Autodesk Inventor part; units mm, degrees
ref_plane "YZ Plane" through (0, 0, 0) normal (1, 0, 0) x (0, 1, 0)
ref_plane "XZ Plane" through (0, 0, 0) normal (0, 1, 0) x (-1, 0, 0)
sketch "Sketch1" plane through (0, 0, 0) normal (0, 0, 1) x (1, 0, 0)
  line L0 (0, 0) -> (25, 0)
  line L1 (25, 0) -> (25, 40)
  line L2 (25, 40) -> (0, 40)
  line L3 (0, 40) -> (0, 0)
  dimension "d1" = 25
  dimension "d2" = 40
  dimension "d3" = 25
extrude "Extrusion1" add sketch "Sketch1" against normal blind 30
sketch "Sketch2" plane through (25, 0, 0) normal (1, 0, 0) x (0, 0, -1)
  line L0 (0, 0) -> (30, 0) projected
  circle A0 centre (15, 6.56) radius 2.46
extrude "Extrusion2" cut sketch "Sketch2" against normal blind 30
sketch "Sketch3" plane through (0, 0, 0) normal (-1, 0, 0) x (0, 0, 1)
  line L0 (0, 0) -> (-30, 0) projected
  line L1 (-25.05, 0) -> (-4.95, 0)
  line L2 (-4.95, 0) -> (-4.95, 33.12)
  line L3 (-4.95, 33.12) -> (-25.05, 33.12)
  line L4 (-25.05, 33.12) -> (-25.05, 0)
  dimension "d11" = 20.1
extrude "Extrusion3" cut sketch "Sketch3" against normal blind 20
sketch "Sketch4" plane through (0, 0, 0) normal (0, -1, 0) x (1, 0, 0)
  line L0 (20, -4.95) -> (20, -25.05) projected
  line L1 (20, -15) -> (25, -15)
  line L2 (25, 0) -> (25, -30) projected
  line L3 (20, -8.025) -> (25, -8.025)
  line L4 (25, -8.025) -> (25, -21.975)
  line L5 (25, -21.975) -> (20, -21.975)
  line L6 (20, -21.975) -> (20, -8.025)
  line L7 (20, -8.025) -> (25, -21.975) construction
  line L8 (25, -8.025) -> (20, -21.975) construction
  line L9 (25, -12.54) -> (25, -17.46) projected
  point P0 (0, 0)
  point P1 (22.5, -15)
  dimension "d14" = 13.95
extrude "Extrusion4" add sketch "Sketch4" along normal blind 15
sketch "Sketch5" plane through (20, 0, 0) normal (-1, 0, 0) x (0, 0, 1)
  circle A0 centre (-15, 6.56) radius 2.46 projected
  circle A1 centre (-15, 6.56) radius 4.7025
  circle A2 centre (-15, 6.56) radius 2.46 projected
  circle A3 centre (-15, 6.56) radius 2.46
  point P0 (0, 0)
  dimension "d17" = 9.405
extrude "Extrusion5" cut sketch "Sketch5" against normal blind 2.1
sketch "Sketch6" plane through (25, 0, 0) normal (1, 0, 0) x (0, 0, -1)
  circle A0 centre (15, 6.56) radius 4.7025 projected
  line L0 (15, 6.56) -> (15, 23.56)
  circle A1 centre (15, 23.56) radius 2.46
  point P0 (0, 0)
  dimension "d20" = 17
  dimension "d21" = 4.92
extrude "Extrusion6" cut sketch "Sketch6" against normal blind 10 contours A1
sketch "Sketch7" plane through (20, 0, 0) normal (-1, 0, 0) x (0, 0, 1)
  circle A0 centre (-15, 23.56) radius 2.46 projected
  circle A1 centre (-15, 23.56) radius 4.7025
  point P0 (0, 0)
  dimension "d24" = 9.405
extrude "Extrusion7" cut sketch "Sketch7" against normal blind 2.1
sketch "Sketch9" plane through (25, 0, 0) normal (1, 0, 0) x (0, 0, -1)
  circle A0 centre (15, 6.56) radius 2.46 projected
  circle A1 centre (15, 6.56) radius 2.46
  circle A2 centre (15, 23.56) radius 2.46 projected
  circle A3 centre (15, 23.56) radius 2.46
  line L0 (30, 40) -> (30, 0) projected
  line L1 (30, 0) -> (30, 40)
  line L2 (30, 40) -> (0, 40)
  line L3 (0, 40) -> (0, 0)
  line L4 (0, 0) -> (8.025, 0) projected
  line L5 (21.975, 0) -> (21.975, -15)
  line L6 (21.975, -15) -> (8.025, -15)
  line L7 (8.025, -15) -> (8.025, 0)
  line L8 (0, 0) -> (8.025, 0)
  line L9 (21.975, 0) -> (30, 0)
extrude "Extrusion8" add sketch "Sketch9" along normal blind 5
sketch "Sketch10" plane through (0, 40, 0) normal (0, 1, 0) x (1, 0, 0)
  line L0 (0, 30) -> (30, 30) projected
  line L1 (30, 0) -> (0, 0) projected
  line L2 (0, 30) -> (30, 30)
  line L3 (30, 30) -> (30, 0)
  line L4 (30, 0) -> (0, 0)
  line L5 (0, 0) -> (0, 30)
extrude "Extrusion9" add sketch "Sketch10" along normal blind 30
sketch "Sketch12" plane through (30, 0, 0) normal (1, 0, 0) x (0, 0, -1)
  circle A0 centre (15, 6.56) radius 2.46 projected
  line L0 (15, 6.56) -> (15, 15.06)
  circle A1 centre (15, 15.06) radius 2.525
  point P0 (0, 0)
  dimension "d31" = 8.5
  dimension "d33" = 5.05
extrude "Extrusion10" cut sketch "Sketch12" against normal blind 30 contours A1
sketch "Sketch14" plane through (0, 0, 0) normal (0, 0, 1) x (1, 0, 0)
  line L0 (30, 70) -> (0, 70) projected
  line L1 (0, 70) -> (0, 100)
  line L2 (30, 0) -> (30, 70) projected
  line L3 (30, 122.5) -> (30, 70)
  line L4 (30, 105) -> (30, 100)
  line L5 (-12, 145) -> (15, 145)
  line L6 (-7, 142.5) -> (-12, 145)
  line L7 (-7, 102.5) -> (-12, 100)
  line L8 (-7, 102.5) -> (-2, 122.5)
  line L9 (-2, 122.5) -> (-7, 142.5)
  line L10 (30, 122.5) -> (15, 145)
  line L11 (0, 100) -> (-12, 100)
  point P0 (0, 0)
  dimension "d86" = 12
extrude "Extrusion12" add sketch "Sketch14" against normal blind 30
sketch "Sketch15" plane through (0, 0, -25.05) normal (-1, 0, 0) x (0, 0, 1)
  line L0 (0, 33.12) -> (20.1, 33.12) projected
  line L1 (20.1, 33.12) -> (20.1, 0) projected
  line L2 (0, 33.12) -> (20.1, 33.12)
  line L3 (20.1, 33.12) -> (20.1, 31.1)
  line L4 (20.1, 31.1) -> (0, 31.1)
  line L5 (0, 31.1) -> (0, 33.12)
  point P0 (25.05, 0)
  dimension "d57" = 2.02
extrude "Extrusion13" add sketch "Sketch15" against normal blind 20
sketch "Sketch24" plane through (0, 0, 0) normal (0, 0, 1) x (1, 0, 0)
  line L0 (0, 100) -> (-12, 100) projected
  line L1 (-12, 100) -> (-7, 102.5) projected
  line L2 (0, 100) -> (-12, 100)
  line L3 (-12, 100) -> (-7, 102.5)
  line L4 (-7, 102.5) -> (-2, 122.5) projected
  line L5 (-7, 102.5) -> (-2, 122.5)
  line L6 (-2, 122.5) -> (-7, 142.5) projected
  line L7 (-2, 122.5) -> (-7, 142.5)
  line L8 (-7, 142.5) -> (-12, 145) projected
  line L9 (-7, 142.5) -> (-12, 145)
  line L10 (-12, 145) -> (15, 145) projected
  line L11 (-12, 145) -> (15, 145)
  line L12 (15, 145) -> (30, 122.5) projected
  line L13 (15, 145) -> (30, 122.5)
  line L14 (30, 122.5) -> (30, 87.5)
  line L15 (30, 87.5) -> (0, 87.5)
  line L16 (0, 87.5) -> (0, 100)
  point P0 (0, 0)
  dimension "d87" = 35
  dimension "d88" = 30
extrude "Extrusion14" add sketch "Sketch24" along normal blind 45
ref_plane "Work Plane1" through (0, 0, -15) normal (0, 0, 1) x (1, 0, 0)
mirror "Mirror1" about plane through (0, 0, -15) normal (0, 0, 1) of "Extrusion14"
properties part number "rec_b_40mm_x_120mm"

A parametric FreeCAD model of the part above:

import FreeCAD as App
import Part
import Sketcher

V = App.Vector
Q = App.Units.Quantity

doc = App.newDocument("Part")
body = doc.addObject("PartDesign::Body", "Body")

# Sketch on XY plane
sketch1 = body.newObject("Sketcher::SketchObject", "Sketch")
sketch1.AttachmentSupport = (doc.getObject("XY_Plane"), [""])
sketch1.MapMode = "FlatFace"
sketch1.addGeometry([
    Part.LineSegment(V(0, 40, 0), V(0, 0, 0)),
    Part.LineSegment(V(0, 0, 0), V(25, 0, 0)),
    Part.LineSegment(V(25, 0, 0), V(25, 40, 0)),
    Part.LineSegment(V(25, 40, 0), V(0, 40, 0)),
], False)
sketch1.addConstraint([
    Sketcher.Constraint("Coincident", 0, 2, 1, 1),
    Sketcher.Constraint("Coincident", 1, 2, 2, 1),
    Sketcher.Constraint("Coincident", 2, 2, 3, 1),
    Sketcher.Constraint("Coincident", 3, 2, 0, 1),
    Sketcher.Constraint("Vertical", 0),
    Sketcher.Constraint("Horizontal", 1),
    Sketcher.Constraint("Vertical", 2),
    Sketcher.Constraint("Horizontal", 3),
    Sketcher.Constraint("Coincident", 0, 2, -1, 1),
    Sketcher.Constraint("DistanceX", 1, 1, 1, 2, Q("25 mm")),
    Sketcher.Constraint("DistanceY", 0, 2, 0, 1, Q("40 mm")),
])
pad1 = body.newObject("PartDesign::Pad", "Pad")
pad1.Profile = sketch1
pad1.Length = 30
pad1.Reversed = True

# Sketch on YZ plane
sketch2 = body.newObject("Sketcher::SketchObject", "Sketch001")
sketch2.AttachmentSupport = (doc.getObject("YZ_Plane"), [""])
sketch2.MapMode = "FlatFace"
sketch2.AttachmentOffset = App.Placement(V(0, 0, 25), App.Rotation())
sketch2.addGeometry(Part.Circle(V(6.56, -15, 0), V(0, 0, 1), 2.46), False)
sketch2.addConstraint([
    Sketcher.Constraint("Diameter", 0, Q("4.92 mm")),
    Sketcher.Constraint("DistanceY", 0, 3, -1, 1, Q("15 mm")),
    Sketcher.Constraint("DistanceX", -1, 1, 0, 3, Q("6.56 mm")),
])
pocket1 = body.newObject("PartDesign::Pocket", "Pocket")
pocket1.Profile = sketch2
pocket1.Length = 30

# Sketch on YZ plane
sketch3 = body.newObject("Sketcher::SketchObject", "Sketch002")
sketch3.AttachmentSupport = (doc.getObject("YZ_Plane"), [""])
sketch3.MapMode = "FlatFace"
sketch3.addGeometry([
    Part.LineSegment(V(0, -25.05, 0), V(0, -4.95, 0)),
    Part.LineSegment(V(0, -4.95, 0), V(33.12, -4.95, 0)),
    Part.LineSegment(V(33.12, -4.95, 0), V(33.12, -25.05, 0)),
    Part.LineSegment(V(33.12, -25.05, 0), V(0, -25.05, 0)),
], False)
sketch3.addConstraint([
    Sketcher.Constraint("Coincident", 0, 2, 1, 1),
    Sketcher.Constraint("Coincident", 1, 2, 2, 1),
    Sketcher.Constraint("Coincident", 2, 2, 3, 1),
    Sketcher.Constraint("Coincident", 3, 2, 0, 1),
    Sketcher.Constraint("Vertical", 0),
    Sketcher.Constraint("Horizontal", 1),
    Sketcher.Constraint("Vertical", 2),
    Sketcher.Constraint("Horizontal", 3),
    Sketcher.Constraint("PointOnObject", 0, 2, -2),
    Sketcher.Constraint("DistanceY", 0, 1, 0, 2, Q("20.1 mm")),
    Sketcher.Constraint("DistanceX", 1, 1, 1, 2, Q("33.12 mm")),
    Sketcher.Constraint("DistanceY", 0, 2, -1, 1, Q("4.95 mm")),
])
pocket2 = body.newObject("PartDesign::Pocket", "Pocket001")
pocket2.Profile = sketch3
pocket2.Length = 20
pocket2.Reversed = True

# Sketch on XZ plane
sketch4 = body.newObject("Sketcher::SketchObject", "Sketch003")
sketch4.AttachmentSupport = (doc.getObject("XZ_Plane"), [""])
sketch4.MapMode = "FlatFace"
sketch4.addGeometry([
    Part.LineSegment(V(25, -8.025, 0), V(20, -8.025, 0)),
    Part.LineSegment(V(20, -8.025, 0), V(20, -21.975, 0)),
    Part.LineSegment(V(20, -21.975, 0), V(25, -21.975, 0)),
    Part.LineSegment(V(25, -21.975, 0), V(25, -8.025, 0)),
], False)
sketch4.addConstraint([
    Sketcher.Constraint("Coincident", 0, 2, 1, 1),
    Sketcher.Constraint("Coincident", 1, 2, 2, 1),
    Sketcher.Constraint("Coincident", 2, 2, 3, 1),
    Sketcher.Constraint("Coincident", 3, 2, 0, 1),
    Sketcher.Constraint("Horizontal", 0),
    Sketcher.Constraint("Vertical", 1),
    Sketcher.Constraint("Horizontal", 2),
    Sketcher.Constraint("Vertical", 3),
    Sketcher.Constraint("DistanceY", 1, 2, 1, 1, Q("13.95 mm")),
    Sketcher.Constraint("DistanceX", 0, 2, 0, 1, Q("5 mm")),
    Sketcher.Constraint("DistanceX", -1, 1, 0, 2, Q("20 mm")),
    Sketcher.Constraint("DistanceY", 0, 2, -1, 1, Q("8.025 mm")),
])
pad2 = body.newObject("PartDesign::Pad", "Pad001")
pad2.Profile = sketch4
pad2.Length = 15

# Sketch on YZ plane
sketch5 = body.newObject("Sketcher::SketchObject", "Sketch004")
sketch5.AttachmentSupport = (doc.getObject("YZ_Plane"), [""])
sketch5.MapMode = "FlatFace"
sketch5.AttachmentOffset = App.Placement(V(0, 0, 20), App.Rotation())
sketch5.addGeometry([
    Part.Circle(V(6.56, -15, 0), V(0, 0, 1), 4.7025),
    Part.Circle(V(6.56, -15, 0), V(0, 0, 1), 2.46),
], False)
sketch5.addConstraint([
    Sketcher.Constraint("Coincident", 1, 3, 0, 3),
    Sketcher.Constraint("Diameter", 0, Q("9.405 mm")),
    Sketcher.Constraint("Diameter", 1, Q("4.92 mm")),
    Sketcher.Constraint("DistanceY", 0, 3, -1, 1, Q("15 mm")),
    Sketcher.Constraint("DistanceX", -1, 1, 0, 3, Q("6.56 mm")),
])
pocket3 = body.newObject("PartDesign::Pocket", "Pocket002")
pocket3.Profile = sketch5
pocket3.Length = 2.1
pocket3.Reversed = True

# Sketch on YZ plane
sketch6 = body.newObject("Sketcher::SketchObject", "Sketch005")
sketch6.AttachmentSupport = (doc.getObject("YZ_Plane"), [""])
sketch6.MapMode = "FlatFace"
sketch6.AttachmentOffset = App.Placement(V(0, 0, 25), App.Rotation())
sketch6.addGeometry(Part.Circle(V(23.56, -15, 0), V(0, 0, 1), 2.46), False)
sketch6.addConstraint([
    Sketcher.Constraint("Diameter", 0, Q("4.92 mm")),
    Sketcher.Constraint("DistanceY", 0, 3, -1, 1, Q("15 mm")),
    Sketcher.Constraint("DistanceX", -1, 1, 0, 3, Q("23.56 mm")),
])
pocket4 = body.newObject("PartDesign::Pocket", "Pocket003")
pocket4.Profile = sketch6
pocket4.Length = 10

# Sketch on YZ plane
sketch7 = body.newObject("Sketcher::SketchObject", "Sketch006")
sketch7.AttachmentSupport = (doc.getObject("YZ_Plane"), [""])
sketch7.MapMode = "FlatFace"
sketch7.AttachmentOffset = App.Placement(V(0, 0, 20), App.Rotation())
sketch7.addGeometry([
    Part.Circle(V(23.56, -15, 0), V(0, 0, 1), 4.7025),
    Part.Circle(V(23.56, -15, 0), V(0, 0, 1), 2.46),
], False)
sketch7.addConstraint([
    Sketcher.Constraint("Coincident", 1, 3, 0, 3),
    Sketcher.Constraint("Diameter", 0, Q("9.405 mm")),
    Sketcher.Constraint("Diameter", 1, Q("4.92 mm")),
    Sketcher.Constraint("DistanceY", 0, 3, -1, 1, Q("15 mm")),
    Sketcher.Constraint("DistanceX", -1, 1, 0, 3, Q("23.56 mm")),
])
pocket5 = body.newObject("PartDesign::Pocket", "Pocket004")
pocket5.Profile = sketch7
pocket5.Length = 2.1
pocket5.Reversed = True

# Sketch on YZ plane
sketch8 = body.newObject("Sketcher::SketchObject", "Sketch007")
sketch8.AttachmentSupport = (doc.getObject("YZ_Plane"), [""])
sketch8.MapMode = "FlatFace"
sketch8.AttachmentOffset = App.Placement(V(0, 0, 25), App.Rotation())
sketch8.addGeometry([
    Part.LineSegment(V(0, -30, 0), V(40, -30, 0)),  # 0
    Part.LineSegment(V(40, -30, 0), V(40, 0, 0)),  # 1
    Part.LineSegment(V(40, 0, 0), V(0, 0, 0)),  # 2
    Part.LineSegment(V(0, 0, 0), V(0, -8.025, 0)),  # 3
    Part.LineSegment(V(0, -8.025, 0), V(-15, -8.025, 0)),  # 4
    Part.LineSegment(V(-15, -8.025, 0), V(-15, -21.975, 0)),  # 5
    Part.LineSegment(V(-15, -21.975, 0), V(0, -21.975, 0)),  # 6
    Part.LineSegment(V(0, -21.975, 0), V(0, -30, 0)),  # 7
    Part.Circle(V(6.56, -15, 0), V(0, 0, 1), 2.46),  # 8
    Part.Circle(V(23.56, -15, 0), V(0, 0, 1), 2.46),  # 9
], False)
sketch8.addConstraint([
    Sketcher.Constraint("Coincident", 0, 2, 1, 1),
    Sketcher.Constraint("Coincident", 1, 2, 2, 1),
    Sketcher.Constraint("Coincident", 2, 2, 3, 1),
    Sketcher.Constraint("Coincident", 3, 2, 4, 1),
    Sketcher.Constraint("Coincident", 4, 2, 5, 1),
    Sketcher.Constraint("Coincident", 5, 2, 6, 1),
    Sketcher.Constraint("Coincident", 6, 2, 7, 1),
    Sketcher.Constraint("Coincident", 7, 2, 0, 1),
    Sketcher.Constraint("Horizontal", 0),
    Sketcher.Constraint("Vertical", 1),
    Sketcher.Constraint("Horizontal", 2),
    Sketcher.Constraint("Vertical", 3),
    Sketcher.Constraint("Horizontal", 4),
    Sketcher.Constraint("Vertical", 5),
    Sketcher.Constraint("Horizontal", 6),
    Sketcher.Constraint("Vertical", 7),
    Sketcher.Constraint("Coincident", 2, 2, -1, 1),
    Sketcher.Constraint("Equal", 8, 9),
    Sketcher.Constraint("PointOnObject", 6, 2, -2),
    Sketcher.Constraint("Horizontal", 8, 3, 9, 3),
    Sketcher.Constraint("Equal", 3, 7),
    Sketcher.Constraint("Diameter", 8, Q("4.92 mm")),
    Sketcher.Constraint("DistanceX", 0, 1, 0, 2, Q("40 mm")),
    Sketcher.Constraint("DistanceX", 4, 2, 4, 1, Q("15 mm")),
    Sketcher.Constraint("DistanceY", 1, 1, 1, 2, Q("30 mm")),
    Sketcher.Constraint("DistanceY", 8, 3, -1, 1, Q("15 mm")),
    Sketcher.Constraint("DistanceX", 8, 3, 9, 3, Q("17 mm")),
    Sketcher.Constraint("DistanceY", 5, 2, 5, 1, Q("13.95 mm")),
    Sketcher.Constraint("DistanceX", -1, 1, 8, 3, Q("6.56 mm")),
])
pad3 = body.newObject("PartDesign::Pad", "Pad002")
pad3.Profile = sketch8
pad3.Length = 5

# Sketch on XZ plane
sketch9 = body.newObject("Sketcher::SketchObject", "Sketch008")
sketch9.AttachmentSupport = (doc.getObject("XZ_Plane"), [""])
sketch9.MapMode = "FlatFace"
sketch9.AttachmentOffset = App.Placement(V(0, 0, -40), App.Rotation())
sketch9.addGeometry([
    Part.LineSegment(V(30, -30, 0), V(0, -30, 0)),
    Part.LineSegment(V(0, -30, 0), V(0, 0, 0)),
    Part.LineSegment(V(0, 0, 0), V(30, 0, 0)),
    Part.LineSegment(V(30, 0, 0), V(30, -30, 0)),
], False)
sketch9.addConstraint([
    Sketcher.Constraint("Coincident", 0, 2, 1, 1),
    Sketcher.Constraint("Coincident", 1, 2, 2, 1),
    Sketcher.Constraint("Coincident", 2, 2, 3, 1),
    Sketcher.Constraint("Coincident", 3, 2, 0, 1),
    Sketcher.Constraint("Horizontal", 0),
    Sketcher.Constraint("Vertical", 1),
    Sketcher.Constraint("Horizontal", 2),
    Sketcher.Constraint("Vertical", 3),
    Sketcher.Constraint("Coincident", 1, 2, -1, 1),
    Sketcher.Constraint("Equal", 2, 1),
    Sketcher.Constraint("DistanceX", 0, 2, 0, 1, Q("30 mm")),
])
pad4 = body.newObject("PartDesign::Pad", "Pad003")
pad4.Profile = sketch9
pad4.Length = 30
pad4.Reversed = True

# Sketch on YZ plane
sketch10 = body.newObject("Sketcher::SketchObject", "Sketch009")
sketch10.AttachmentSupport = (doc.getObject("YZ_Plane"), [""])
sketch10.MapMode = "FlatFace"
sketch10.AttachmentOffset = App.Placement(V(0, 0, 30), App.Rotation())
sketch10.addGeometry(Part.Circle(V(15.06, -15, 0), V(0, 0, 1), 2.525), False)
sketch10.addConstraint([
    Sketcher.Constraint("Diameter", 0, Q("5.05 mm")),
    Sketcher.Constraint("DistanceY", 0, 3, -1, 1, Q("15 mm")),
    Sketcher.Constraint("DistanceX", -1, 1, 0, 3, Q("15.06 mm")),
])
pocket6 = body.newObject("PartDesign::Pocket", "Pocket005")
pocket6.Profile = sketch10
pocket6.Length = 30

# Sketch on XY plane
sketch11 = body.newObject("Sketcher::SketchObject", "Sketch010")
sketch11.AttachmentSupport = (doc.getObject("XY_Plane"), [""])
sketch11.MapMode = "FlatFace"
sketch11.addGeometry([
    Part.LineSegment(V(0, 70, 0), V(30, 70, 0)),  # 0
    Part.LineSegment(V(30, 70, 0), V(30, 122.5, 0)),  # 1
    Part.LineSegment(V(30, 122.5, 0), V(15, 145, 0)),  # 2
    Part.LineSegment(V(15, 145, 0), V(-12, 145, 0)),  # 3
    Part.LineSegment(V(-12, 145, 0), V(-7, 142.5, 0)),  # 4
    Part.LineSegment(V(-7, 142.5, 0), V(-2, 122.5, 0)),  # 5
    Part.LineSegment(V(-2, 122.5, 0), V(-7, 102.5, 0)),  # 6
    Part.LineSegment(V(-7, 102.5, 0), V(-12, 100, 0)),  # 7
    Part.LineSegment(V(-12, 100, 0), V(0, 100, 0)),  # 8
    Part.LineSegment(V(0, 100, 0), V(0, 70, 0)),  # 9
], False)
sketch11.addConstraint([
    Sketcher.Constraint("Coincident", 0, 2, 1, 1),
    Sketcher.Constraint("Coincident", 1, 2, 2, 1),
    Sketcher.Constraint("Coincident", 2, 2, 3, 1),
    Sketcher.Constraint("Coincident", 3, 2, 4, 1),
    Sketcher.Constraint("Coincident", 4, 2, 5, 1),
    Sketcher.Constraint("Coincident", 5, 2, 6, 1),
    Sketcher.Constraint("Coincident", 6, 2, 7, 1),
    Sketcher.Constraint("Coincident", 7, 2, 8, 1),
    Sketcher.Constraint("Coincident", 8, 2, 9, 1),
    Sketcher.Constraint("Coincident", 9, 2, 0, 1),
    Sketcher.Constraint("Horizontal", 0),
    Sketcher.Constraint("Vertical", 1),
    Sketcher.Constraint("Horizontal", 3),
    Sketcher.Constraint("Horizontal", 8),
    Sketcher.Constraint("Vertical", 9),
    Sketcher.Constraint("PointOnObject", 8, 2, -2),
    Sketcher.Constraint("Horizontal", 1, 2, 5, 2),
    Sketcher.Constraint("Vertical", 4, 2, 6, 2),
    Sketcher.Constraint("Vertical", 3, 2, 7, 2),
    Sketcher.Constraint("Equal", 0, 9),
    Sketcher.Constraint("Equal", 5, 6),
    Sketcher.Constraint("Equal", 4, 7),
    Sketcher.Constraint("DistanceX", 8, 1, 8, 2, Q("12 mm")),
    Sketcher.Constraint("DistanceX", 0, 1, 0, 2, Q("30 mm")),
    Sketcher.Constraint("DistanceX", 3, 2, 3, 1, Q("27 mm")),
    Sketcher.Constraint("DistanceY", 1, 1, 1, 2, Q("52.5 mm")),
    Sketcher.Constraint("DistanceY", -1, 1, 0, 2, Q("70 mm")),
    Sketcher.Constraint("DistanceX", 4, 2, -1, 1, Q("7 mm")),
    Sketcher.Constraint("DistanceX", 5, 2, -1, 1, Q("2 mm")),
    Sketcher.Constraint("DistanceY", 1, 2, 4, 2, Q("20 mm")),
])
pad5 = body.newObject("PartDesign::Pad", "Pad004")
pad5.Profile = sketch11
pad5.Length = 30
pad5.Reversed = True

# Sketch on YZ plane
sketch12 = body.newObject("Sketcher::SketchObject", "Sketch011")
sketch12.AttachmentSupport = (doc.getObject("YZ_Plane"), [""])
sketch12.MapMode = "FlatFace"
sketch12.addGeometry([
    Part.LineSegment(V(33.12, -4.95, 0), V(33.12, -25.05, 0)),
    Part.LineSegment(V(33.12, -25.05, 0), V(31.1, -25.05, 0)),
    Part.LineSegment(V(31.1, -25.05, 0), V(31.1, -4.95, 0)),
    Part.LineSegment(V(31.1, -4.95, 0), V(33.12, -4.95, 0)),
], False)
sketch12.addConstraint([
    Sketcher.Constraint("Coincident", 0, 2, 1, 1),
    Sketcher.Constraint("Coincident", 1, 2, 2, 1),
    Sketcher.Constraint("Coincident", 2, 2, 3, 1),
    Sketcher.Constraint("Coincident", 3, 2, 0, 1),
    Sketcher.Constraint("Vertical", 0),
    Sketcher.Constraint("Horizontal", 1),
    Sketcher.Constraint("Vertical", 2),
    Sketcher.Constraint("Horizontal", 3),
    Sketcher.Constraint("DistanceX", 1, 2, 1, 1, Q("2.02 mm")),
    Sketcher.Constraint("DistanceY", 0, 2, 0, 1, Q("20.1 mm")),
    Sketcher.Constraint("DistanceX", -1, 1, 1, 2, Q("31.1 mm")),
    Sketcher.Constraint("DistanceY", 0, 2, -1, 1, Q("25.05 mm")),
])
pad6 = body.newObject("PartDesign::Pad", "Pad005")
pad6.Profile = sketch12
pad6.Length = 20

# Sketch on XY plane
sketch13 = body.newObject("Sketcher::SketchObject", "Sketch012")
sketch13.AttachmentSupport = (doc.getObject("XY_Plane"), [""])
sketch13.MapMode = "FlatFace"
sketch13.addGeometry([
    Part.LineSegment(V(-12, 100, 0), V(0, 100, 0)),  # 0
    Part.LineSegment(V(0, 100, 0), V(0, 87.5, 0)),  # 1
    Part.LineSegment(V(0, 87.5, 0), V(30, 87.5, 0)),  # 2
    Part.LineSegment(V(30, 87.5, 0), V(30, 122.5, 0)),  # 3
    Part.LineSegment(V(30, 122.5, 0), V(15, 145, 0)),  # 4
    Part.LineSegment(V(15, 145, 0), V(-12, 145, 0)),  # 5
    Part.LineSegment(V(-12, 145, 0), V(-7, 142.5, 0)),  # 6
    Part.LineSegment(V(-7, 142.5, 0), V(-2, 122.5, 0)),  # 7
    Part.LineSegment(V(-2, 122.5, 0), V(-7, 102.5, 0)),  # 8
    Part.LineSegment(V(-7, 102.5, 0), V(-12, 100, 0)),  # 9
], False)
sketch13.addConstraint([
    Sketcher.Constraint("Coincident", 0, 2, 1, 1),
    Sketcher.Constraint("Coincident", 1, 2, 2, 1),
    Sketcher.Constraint("Coincident", 2, 2, 3, 1),
    Sketcher.Constraint("Coincident", 3, 2, 4, 1),
    Sketcher.Constraint("Coincident", 4, 2, 5, 1),
    Sketcher.Constraint("Coincident", 5, 2, 6, 1),
    Sketcher.Constraint("Coincident", 6, 2, 7, 1),
    Sketcher.Constraint("Coincident", 7, 2, 8, 1),
    Sketcher.Constraint("Coincident", 8, 2, 9, 1),
    Sketcher.Constraint("Coincident", 9, 2, 0, 1),
    Sketcher.Constraint("Horizontal", 0),
    Sketcher.Constraint("Vertical", 1),
    Sketcher.Constraint("Horizontal", 2),
    Sketcher.Constraint("Vertical", 3),
    Sketcher.Constraint("Horizontal", 5),
    Sketcher.Constraint("PointOnObject", 0, 2, -2),
    Sketcher.Constraint("Horizontal", 3, 2, 7, 2),
    Sketcher.Constraint("Vertical", 6, 2, 8, 2),
    Sketcher.Constraint("Vertical", 5, 2, 9, 2),
    Sketcher.Constraint("Equal", 7, 8),
    Sketcher.Constraint("Equal", 6, 9),
    Sketcher.Constraint("DistanceX", 2, 1, 2, 2, Q("30 mm")),
    Sketcher.Constraint("DistanceY", 3, 1, 3, 2, Q("35 mm")),
    Sketcher.Constraint("DistanceX", 0, 1, 0, 2, Q("12 mm")),
    Sketcher.Constraint("DistanceX", 5, 2, 5, 1, Q("27 mm")),
    Sketcher.Constraint("DistanceY", 1, 2, 1, 1, Q("12.5 mm")),
    Sketcher.Constraint("DistanceY", -1, 1, 0, 2, Q("100 mm")),
    Sketcher.Constraint("DistanceX", 6, 2, -1, 1, Q("7 mm")),
    Sketcher.Constraint("DistanceX", 7, 2, -1, 1, Q("2 mm")),
    Sketcher.Constraint("DistanceY", 3, 2, 6, 2, Q("20 mm")),
])
pad7 = body.newObject("PartDesign::Pad", "Pad006")
pad7.Profile = sketch13
pad7.Length = 45
doc.recompute()

datumplane = body.newObject("PartDesign::Plane", "DatumPlane")
datumplane.AttachmentSupport = (doc.getObject("XY_Plane"), [""])
datumplane.MapMode = "FlatFace"
datumplane.AttachmentOffset = App.Placement(V(0, 0, -15), App.Rotation())
mirrored = body.newObject("PartDesign::Mirrored", "Mirrored")
mirrored.Originals = [pad7]
mirrored.MirrorPlane = (datumplane, [""])
body.Tip = mirrored

doc.recompute()
